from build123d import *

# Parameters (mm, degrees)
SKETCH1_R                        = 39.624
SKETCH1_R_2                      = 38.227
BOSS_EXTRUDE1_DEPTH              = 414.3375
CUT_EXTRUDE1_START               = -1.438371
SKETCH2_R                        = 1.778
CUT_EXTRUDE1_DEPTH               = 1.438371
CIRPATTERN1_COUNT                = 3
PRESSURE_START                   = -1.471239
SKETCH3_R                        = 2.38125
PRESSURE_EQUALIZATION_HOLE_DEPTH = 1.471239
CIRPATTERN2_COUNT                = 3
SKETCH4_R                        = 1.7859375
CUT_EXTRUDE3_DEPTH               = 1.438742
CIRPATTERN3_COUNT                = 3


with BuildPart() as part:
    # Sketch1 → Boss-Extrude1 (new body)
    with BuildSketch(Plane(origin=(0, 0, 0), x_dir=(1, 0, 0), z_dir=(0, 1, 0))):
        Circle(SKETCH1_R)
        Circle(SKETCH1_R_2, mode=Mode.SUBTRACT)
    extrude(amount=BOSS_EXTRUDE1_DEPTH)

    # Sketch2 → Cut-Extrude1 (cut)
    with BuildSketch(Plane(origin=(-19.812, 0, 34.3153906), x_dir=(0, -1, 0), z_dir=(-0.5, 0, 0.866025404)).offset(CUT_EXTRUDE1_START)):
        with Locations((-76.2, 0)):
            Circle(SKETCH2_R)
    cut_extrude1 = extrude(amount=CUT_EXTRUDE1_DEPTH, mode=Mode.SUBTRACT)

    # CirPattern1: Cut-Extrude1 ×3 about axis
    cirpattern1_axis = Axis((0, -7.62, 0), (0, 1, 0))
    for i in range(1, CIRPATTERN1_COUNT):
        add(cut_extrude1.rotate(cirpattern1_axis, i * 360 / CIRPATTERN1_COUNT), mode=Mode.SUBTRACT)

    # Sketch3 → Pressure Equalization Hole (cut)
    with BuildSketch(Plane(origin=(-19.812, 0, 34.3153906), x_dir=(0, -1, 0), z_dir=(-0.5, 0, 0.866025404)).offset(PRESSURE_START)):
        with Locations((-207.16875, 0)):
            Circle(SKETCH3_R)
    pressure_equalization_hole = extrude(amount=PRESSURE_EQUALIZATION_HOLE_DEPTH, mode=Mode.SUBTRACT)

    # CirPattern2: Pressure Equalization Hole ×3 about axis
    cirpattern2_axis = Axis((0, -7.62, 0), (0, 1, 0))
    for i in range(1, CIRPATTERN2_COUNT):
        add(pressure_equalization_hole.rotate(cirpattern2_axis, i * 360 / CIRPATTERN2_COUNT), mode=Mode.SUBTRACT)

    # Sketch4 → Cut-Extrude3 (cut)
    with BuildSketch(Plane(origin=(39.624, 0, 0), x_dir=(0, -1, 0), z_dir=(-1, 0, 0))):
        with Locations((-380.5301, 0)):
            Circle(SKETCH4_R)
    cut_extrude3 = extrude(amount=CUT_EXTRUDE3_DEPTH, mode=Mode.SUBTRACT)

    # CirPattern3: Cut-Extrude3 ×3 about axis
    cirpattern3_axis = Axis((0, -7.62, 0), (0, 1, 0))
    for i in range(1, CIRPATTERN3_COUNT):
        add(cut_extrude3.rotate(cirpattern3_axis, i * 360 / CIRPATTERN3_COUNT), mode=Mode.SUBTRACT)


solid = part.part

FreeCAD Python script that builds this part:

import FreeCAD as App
import Part
import Sketcher
from FreeCAD import Vector
Q = App.Units.Quantity

doc = App.newDocument("Part")
params = doc.addObject("Spreadsheet::Sheet", "Params")
for row, (alias, value) in enumerate([
    ("sketch1_diameter", "3.12 in"),
    ("sketch1_diameter2", "3.01 in"),
    ("pad1_length", "16.3125 in"),
    ("sketch2_diameter", "0.14 in"),
    ("pocket1_length", "1.438371 mm"),
    ("sketch3_diameter", "0.1875 in"),
    ("pocket2_length", "1.471239 mm"),
    ("sketch4_diameter", "0.140625 in"),
    ("pocket3_length", "1.438742 mm"),
], start=1):
    params.set(f"A{row}", alias)
    params.set(f"B{row}", "=" + value)
    params.setAlias(f"B{row}", alias)

body = doc.addObject("PartDesign::Body", "Body")

sketch1 = body.newObject("Sketcher::SketchObject", "Sketch")
sketch1.AttachmentSupport = (doc.getObject("XZ_Plane"), [""])
sketch1.MapMode = "FlatFace"
sketch1.addGeometry([
    Part.Circle(Vector(0, 0, 0), Vector(0, 0, 1), 40),
    Part.Circle(Vector(0, 0, 0), Vector(0, 0, 1), 38),
], False)
sketch1.addConstraint([
    Sketcher.Constraint("Coincident", 0, 3, -1, 1),
    Sketcher.Constraint("Coincident", 1, 3, -1, 1),
    Sketcher.Constraint("Diameter", 0, Q("3.12 in")),
    Sketcher.Constraint("Diameter", 1, Q("3.01 in")),
])
sketch1.setExpression("Constraints[2]", "Params.sketch1_diameter")
sketch1.setExpression("Constraints[3]", "Params.sketch1_diameter2")
pad1 = body.newObject("PartDesign::Pad", "Pad")
pad1.Profile = sketch1
pad1.setExpression("Length", "Params.pad1_length")
pad1.Reversed = True

sketch2 = body.newObject("Sketcher::SketchObject", "Sketch001")
sketch2.Placement = App.Placement(Vector(-19.092814, 0, 33.069725), App.Rotation(Vector(0, -1, 0), Vector(0.866025404, 0, 0.5), Vector(-0.5, 0, 0.866025404), "ZXY"))
sketch2.addGeometry(Part.Circle(Vector(-76.2, 0, 0), Vector(0, 0, 1), 1.8), False)
sketch2.addConstraint([
    Sketcher.Constraint("PointOnObject", 0, 3, -1),
    Sketcher.Constraint("Diameter", 0, Q("0.14 in")),
    Sketcher.Constraint("DistanceX", 0, 3, -1, 1, Q("3 in")),
])
sketch2.setExpression("Constraints[1]", "Params.sketch2_diameter")
pocket1 = body.newObject("PartDesign::Pocket", "Pocket")
pocket1.Profile = sketch2
pocket1.setExpression("Length", "Params.pocket1_length")
pocket1.Reversed = True
doc.recompute()

polarpattern = body.newObject("PartDesign::PolarPattern", "PolarPattern")
polarpattern.Originals = [pocket1]
polarpattern.Axis = (doc.getObject("Y_Axis"), [""])
polarpattern.Angle = 360
polarpattern.Occurrences = 3
body.Tip = polarpattern

sketch3 = body.newObject("Sketcher::SketchObject", "Sketch002")
sketch3.Placement = App.Placement(Vector(-19.07638, 0, 33.04126), App.Rotation(Vector(0, -1, 0), Vector(0.866025404, 0, 0.5), Vector(-0.5, 0, 0.866025404), "ZXY"))
sketch3.addGeometry(Part.Circle(Vector(-207.2, 0, 0), Vector(0, 0, 1), 2.4), False)
sketch3.addConstraint([
    Sketcher.Constraint("PointOnObject", 0, 3, -1),
    Sketcher.Constraint("Diameter", 0, Q("0.1875 in")),
    Sketcher.Constraint("DistanceX", 0, 3, -1, 1, Q("8.15625 in")),
])
sketch3.setExpression("Constraints[1]", "Params.sketch3_diameter")
pocket2 = body.newObject("PartDesign::Pocket", "Pocket001")
pocket2.Profile = sketch3
pocket2.setExpression("Length", "Params.pocket2_length")
pocket2.Reversed = True
doc.recompute()

polarpattern2 = body.newObject("PartDesign::PolarPattern", "PolarPattern001")
polarpattern2.Originals = [pocket2]
polarpattern2.Axis = (doc.getObject("Y_Axis"), [""])
polarpattern2.Angle = 360
polarpattern2.Occurrences = 3
body.Tip = polarpattern2

sketch4 = body.newObject("Sketcher::SketchObject", "Sketch003")
sketch4.AttachmentSupport = (doc.getObject("YZ_Plane"), [""])
sketch4.MapMode = "FlatFace"
sketch4.AttachmentOffset = App.Placement(Vector(0, 0, 1.56 * 25.4), App.Rotation())
sketch4.addGeometry(Part.Circle(Vector(380.5, 0, 0), Vector(0, 0, 1), 1.8), False)
sketch4.addConstraint([
    Sketcher.Constraint("PointOnObject", 0, 3, -1),
    Sketcher.Constraint("Diameter", 0, Q("0.140625 in")),
    Sketcher.Constraint("DistanceX", -1, 1, 0, 3, Q("14.9815 in")),
])
sketch4.setExpression("Constraints[1]", "Params.sketch4_diameter")
pocket3 = body.newObject("PartDesign::Pocket", "Pocket002")
pocket3.Profile = sketch4
pocket3.setExpression("Length", "Params.pocket3_length")
doc.recompute()

polarpattern3 = body.newObject("PartDesign::PolarPattern", "PolarPattern002")
polarpattern3.Originals = [pocket3]
polarpattern3.Axis = (doc.getObject("Y_Axis"), [""])
polarpattern3.Angle = 360
polarpattern3.Occurrences = 3
body.Tip = polarpattern3

doc.recompute()
